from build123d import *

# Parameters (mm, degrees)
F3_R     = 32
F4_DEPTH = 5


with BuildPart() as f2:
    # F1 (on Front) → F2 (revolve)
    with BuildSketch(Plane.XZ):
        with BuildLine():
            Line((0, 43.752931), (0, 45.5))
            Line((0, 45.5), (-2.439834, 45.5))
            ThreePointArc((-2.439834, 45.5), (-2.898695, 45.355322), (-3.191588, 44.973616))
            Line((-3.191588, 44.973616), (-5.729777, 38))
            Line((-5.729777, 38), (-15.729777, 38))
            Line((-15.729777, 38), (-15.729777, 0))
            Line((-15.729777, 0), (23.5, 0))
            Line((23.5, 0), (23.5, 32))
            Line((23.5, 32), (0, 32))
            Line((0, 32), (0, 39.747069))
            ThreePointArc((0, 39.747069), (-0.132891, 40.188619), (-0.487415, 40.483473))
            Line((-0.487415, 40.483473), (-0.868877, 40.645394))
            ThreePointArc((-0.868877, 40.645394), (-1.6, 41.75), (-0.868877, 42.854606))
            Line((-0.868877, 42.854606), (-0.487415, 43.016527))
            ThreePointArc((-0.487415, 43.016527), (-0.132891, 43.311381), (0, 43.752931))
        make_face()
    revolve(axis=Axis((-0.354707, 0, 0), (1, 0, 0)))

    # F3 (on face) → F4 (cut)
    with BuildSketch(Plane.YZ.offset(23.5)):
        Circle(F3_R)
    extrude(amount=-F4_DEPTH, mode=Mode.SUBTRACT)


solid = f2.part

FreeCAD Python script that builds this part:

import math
import FreeCAD as App
import Part
import Sketcher

V = App.Vector
Q = App.Units.Quantity

doc = App.newDocument("Part")
params = doc.addObject("Spreadsheet::Sheet", "Params")
for row, (alias, value) in enumerate([
    ("sketch1_radius", "0.799999 mm"),
    ("sketch1_radius2", "1.2 mm"),
    ("sketch1_width", "10 mm"),
    ("sketch1_height", "38 mm"),
    ("sketch1_height2", "32 mm"),
    ("revolution_angle", "360 deg"),
    ("sketch2_diameter", "64 mm"),
    ("pocket1_length", "5 mm"),
], start=1):
    params.set(f"A{row}", alias)
    params.set(f"B{row}", "=" + value)
    params.setAlias(f"B{row}", alias)

body = doc.addObject("PartDesign::Body", "Body")

# Sketch on XZ plane
sketch1 = doc.addObject("Sketcher::SketchObject", "Sketch")
body.addObject(sketch1)
sketch1.AttachmentSupport = (doc.XZ_Plane, [""])
sketch1.MapMode = "FlatFace"
sketch1.addGeometry([
    Part.LineSegment(V(0, 43.752931, 0), V(0, 45.5, 0)),  # 0
    Part.LineSegment(V(0, 45.5, 0), V(-2.439834, 45.5, 0)),  # 1
    Part.ArcOfCircle(Part.Circle(V(-2.439835, 44.700001, 0), V(0, 0, 1), 0.799999), math.radians(89.999943), math.radians(160.000075)),  # 2
    Part.LineSegment(V(-3.191588, 44.973616, 0), V(-5.729777, 38, 0)),  # 3
    Part.LineSegment(V(-5.729777, 38, 0), V(-15.729777, 38, 0)),  # 4
    Part.LineSegment(V(-15.729777, 38, 0), V(-15.729777, 0, 0)),  # 5
    Part.LineSegment(V(-15.729777, 0, 0), V(23.5, 0, 0)),  # 6
    Part.LineSegment(V(23.5, 0, 0), V(23.5, 32, 0)),  # 7
    Part.LineSegment(V(23.5, 32, 0), V(0, 32, 0)),  # 8
    Part.LineSegment(V(0, 32, 0), V(0, 39.747069, 0)),  # 9
    Part.ArcOfCircle(Part.Circle(V(-0.799998, 39.747071, 0), V(0, 0, 1), 0.799998), math.radians(-0.000113), math.radians(67.000094)),  # 10
    Part.LineSegment(V(-0.487415, 40.483473, 0), V(-0.868877, 40.645394, 0)),  # 11
    Part.ArcOfCircle(Part.Circle(V(-0.4, 41.75, 0), V(0, 0, 1), 1.2), math.radians(112.999983), math.radians(247.000017)),  # 12
    Part.LineSegment(V(-0.868877, 42.854606, 0), V(-0.487415, 43.016527, 0)),  # 13
    Part.ArcOfCircle(Part.Circle(V(-0.799998, 43.752929, 0), V(0, 0, 1), 0.799998), math.radians(-67.000094), math.radians(0.000113)),  # 14
], False)
sketch1.addConstraint([
    Sketcher.Constraint("Coincident", 0, 2, 1, 1),
    Sketcher.Constraint("Tangent", 1, 2, 2, 1),
    Sketcher.Constraint("Tangent", 2, 2, 3, 1),
    Sketcher.Constraint("Coincident", 3, 2, 4, 1),
    Sketcher.Constraint("Coincident", 4, 2, 5, 1),
    Sketcher.Constraint("Coincident", 5, 2, 6, 1),
    Sketcher.Constraint("Coincident", 6, 2, 7, 1),
    Sketcher.Constraint("Coincident", 7, 2, 8, 1),
    Sketcher.Constraint("Coincident", 8, 2, 9, 1),
    Sketcher.Constraint("Tangent", 9, 2, 10, 1),
    Sketcher.Constraint("Tangent", 10, 2, 11, 1),
    Sketcher.Constraint("Tangent", 11, 2, 12, 2),
    Sketcher.Constraint("Tangent", 12, 1, 13, 1),
    Sketcher.Constraint("Tangent", 13, 2, 14, 1),
    Sketcher.Constraint("Tangent", 14, 2, 0, 1),
    Sketcher.Constraint("Vertical", 0),
    Sketcher.Constraint("Horizontal", 1),
    Sketcher.Constraint("Horizontal", 4),
    Sketcher.Constraint("Vertical", 5),
    Sketcher.Constraint("Horizontal", 6),
    Sketcher.Constraint("Vertical", 7),
    Sketcher.Constraint("Horizontal", 8),
    Sketcher.Constraint("Vertical", 9),
    Sketcher.Constraint("Equal", 2, 10),
    Sketcher.Constraint("Equal", 10, 14),
    Sketcher.Constraint("PointOnObject", 0, 2, -2),
    Sketcher.Constraint("PointOnObject", 5, 2, -1),
    Sketcher.Constraint("PointOnObject", 8, 2, -2),
    Sketcher.Constraint("Vertical", 11, 2, 12, 1),
    Sketcher.Constraint("Radius", 2, Q("0.799999 mm")),
    Sketcher.Constraint("Radius", 12, Q("1.2 mm")),
    Sketcher.Constraint("DistanceX", 4, 2, 4, 1, Q("10 mm")),
    Sketcher.Constraint("DistanceY", 5, 2, 5, 1, Q("38 mm")),
    Sketcher.Constraint("DistanceY", 7, 1, 7, 2, Q("32 mm")),
    Sketcher.Constraint("Angle", 3, Q("-110.000003 deg")),
    Sketcher.Constraint("Angle", 11, Q("157.000002 deg")),
    Sketcher.Constraint("DistanceX", 8, 2, 8, 1, Q("23.5 mm")),
    Sketcher.Constraint("DistanceY", -1, 1, 2, 3, Q("44.700001 mm")),
    Sketcher.Constraint("DistanceX", 12, 3, -1, 1, Q("0.4 mm")),
    Sketcher.Constraint("DistanceY", -1, 1, 12, 3, Q("41.75 mm")),
    Sketcher.Constraint("DistanceX", 1, 2, 1, 1, Q("2.439834 mm")),
])
sketch1.setExpression("Constraints[29]", "Params.sketch1_radius")
sketch1.setExpression("Constraints[30]", "Params.sketch1_radius2")
sketch1.setExpression("Constraints[31]", "Params.sketch1_width")
sketch1.setExpression("Constraints[32]", "Params.sketch1_height")
sketch1.setExpression("Constraints[33]", "Params.sketch1_height2")
revolution = doc.addObject("PartDesign::Revolution", "Revolution")
body.addObject(revolution)
revolution.Profile = sketch1
revolution.ReferenceAxis = (sketch1, ["H_Axis"])
revolution.setExpression("Angle", "Params.revolution_angle")

# Sketch on YZ plane
sketch2 = doc.addObject("Sketcher::SketchObject", "Sketch001")
body.addObject(sketch2)
sketch2.AttachmentSupport = (doc.YZ_Plane, [""])
sketch2.MapMode = "FlatFace"
sketch2.AttachmentOffset = App.Placement(V(0, 0, 23.5), App.Rotation())
sketch2.addGeometry(Part.Circle(V(0, 0, 0), V(0, 0, 1), 32), False)
sketch2.addConstraint([
    Sketcher.Constraint("Coincident", 0, 3, -1, 1),
    Sketcher.Constraint("Diameter", 0, Q("64 mm")),
])
sketch2.setExpression("Constraints[1]", "Params.sketch2_diameter")
pocket1 = doc.addObject("PartDesign::Pocket", "Pocket")
body.addObject(pocket1)
pocket1.Profile = sketch2
pocket1.setExpression("Length", "Params.pocket1_length")

doc.recompute()
